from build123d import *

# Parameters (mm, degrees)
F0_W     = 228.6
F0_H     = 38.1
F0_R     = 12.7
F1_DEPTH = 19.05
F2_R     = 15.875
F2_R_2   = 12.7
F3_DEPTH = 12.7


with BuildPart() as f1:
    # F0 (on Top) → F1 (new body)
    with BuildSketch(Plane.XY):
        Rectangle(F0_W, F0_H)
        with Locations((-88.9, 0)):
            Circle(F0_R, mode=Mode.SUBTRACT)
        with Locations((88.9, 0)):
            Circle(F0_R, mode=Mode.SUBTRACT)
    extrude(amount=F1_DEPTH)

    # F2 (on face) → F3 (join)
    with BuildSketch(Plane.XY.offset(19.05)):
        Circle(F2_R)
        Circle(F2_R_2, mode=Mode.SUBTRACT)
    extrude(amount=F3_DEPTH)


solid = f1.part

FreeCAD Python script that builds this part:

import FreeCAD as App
import Part
import Sketcher

V = App.Vector
Q = App.Units.Quantity


def add_polygon(sketch, points):
    """Adds a closed chain of lines whose ends are joined by coincident constraints."""
    first, n = sketch.GeometryCount, len(points)
    for a, b in zip(points, points[1:] + points[:1]):
        sketch.addGeometry(Part.LineSegment(App.Vector(*a, 0), App.Vector(*b, 0)), False)
    for i in range(n):
        sketch.addConstraint(Sketcher.Constraint("Coincident", first + i, 2, first + (i + 1) % n, 1))

doc = App.newDocument("Part")
body = doc.addObject("PartDesign::Body", "Body")

# Sketch on XY plane
sketch1 = body.newObject("Sketcher::SketchObject", "Sketch")
sketch1.AttachmentSupport = (doc.getObject("XY_Plane"), [""])
sketch1.MapMode = "FlatFace"
add_polygon(sketch1, [(-114, 19), (-114, -19), (114, -19), (114, 19)])  # lines 0-3
sketch1.addGeometry(Part.Circle(V(-89, 0, 0), V(0, 0, 1), 13), False)  # 4
sketch1.addGeometry(Part.Circle(V(89, 0, 0), V(0, 0, 1), 13), False)  # 5
sketch1.addConstraint([
    Sketcher.Constraint("Vertical", 0),
    Sketcher.Constraint("Horizontal", 1),
    Sketcher.Constraint("Vertical", 2),
    Sketcher.Constraint("Horizontal", 3),
    Sketcher.Constraint("Equal", 4, 5),
    Sketcher.Constraint("Symmetric", 4, 3, 5, 3, -1, 1),
    Sketcher.Constraint("Symmetric", 0, 2, 2, 2, -1, 1),
    Sketcher.Constraint("PointOnObject", 4, 3, -1),
    Sketcher.Constraint("Diameter", 4, Q("1 in")),
    Sketcher.Constraint("DistanceX", 1, 1, 1, 2, Q("9 in")),
    Sketcher.Constraint("DistanceY", 0, 2, 0, 1, Q("1.5 in")),
    Sketcher.Constraint("DistanceX", 4, 3, 5, 3, Q("7 in")),
])
pad1 = body.newObject("PartDesign::Pad", "Pad")
pad1.Profile = sketch1
pad1.Length = Q("0.75 in")

# Sketch on XY plane
sketch2 = body.newObject("Sketcher::SketchObject", "Sketch001")
sketch2.AttachmentSupport = (doc.getObject("XY_Plane"), [""])
sketch2.MapMode = "FlatFace"
sketch2.AttachmentOffset = App.Placement(V(0, 0, 0.75 * 25.4), App.Rotation())
sketch2.addGeometry([
    Part.Circle(V(0, 0, 0), V(0, 0, 1), 16),
    Part.Circle(V(0, 0, 0), V(0, 0, 1), 13),
], False)
sketch2.addConstraint([
    Sketcher.Constraint("Coincident", 0, 3, -1, 1),
    Sketcher.Constraint("Coincident", 1, 3, -1, 1),
    Sketcher.Constraint("Diameter", 1, Q("1 in")),
    Sketcher.Constraint("Diameter", 0, Q("1.25 in")),
])
pad2 = body.newObject("PartDesign::Pad", "Pad001")
pad2.Profile = sketch2
pad2.Length = Q("0.5 in")

doc.recompute()
